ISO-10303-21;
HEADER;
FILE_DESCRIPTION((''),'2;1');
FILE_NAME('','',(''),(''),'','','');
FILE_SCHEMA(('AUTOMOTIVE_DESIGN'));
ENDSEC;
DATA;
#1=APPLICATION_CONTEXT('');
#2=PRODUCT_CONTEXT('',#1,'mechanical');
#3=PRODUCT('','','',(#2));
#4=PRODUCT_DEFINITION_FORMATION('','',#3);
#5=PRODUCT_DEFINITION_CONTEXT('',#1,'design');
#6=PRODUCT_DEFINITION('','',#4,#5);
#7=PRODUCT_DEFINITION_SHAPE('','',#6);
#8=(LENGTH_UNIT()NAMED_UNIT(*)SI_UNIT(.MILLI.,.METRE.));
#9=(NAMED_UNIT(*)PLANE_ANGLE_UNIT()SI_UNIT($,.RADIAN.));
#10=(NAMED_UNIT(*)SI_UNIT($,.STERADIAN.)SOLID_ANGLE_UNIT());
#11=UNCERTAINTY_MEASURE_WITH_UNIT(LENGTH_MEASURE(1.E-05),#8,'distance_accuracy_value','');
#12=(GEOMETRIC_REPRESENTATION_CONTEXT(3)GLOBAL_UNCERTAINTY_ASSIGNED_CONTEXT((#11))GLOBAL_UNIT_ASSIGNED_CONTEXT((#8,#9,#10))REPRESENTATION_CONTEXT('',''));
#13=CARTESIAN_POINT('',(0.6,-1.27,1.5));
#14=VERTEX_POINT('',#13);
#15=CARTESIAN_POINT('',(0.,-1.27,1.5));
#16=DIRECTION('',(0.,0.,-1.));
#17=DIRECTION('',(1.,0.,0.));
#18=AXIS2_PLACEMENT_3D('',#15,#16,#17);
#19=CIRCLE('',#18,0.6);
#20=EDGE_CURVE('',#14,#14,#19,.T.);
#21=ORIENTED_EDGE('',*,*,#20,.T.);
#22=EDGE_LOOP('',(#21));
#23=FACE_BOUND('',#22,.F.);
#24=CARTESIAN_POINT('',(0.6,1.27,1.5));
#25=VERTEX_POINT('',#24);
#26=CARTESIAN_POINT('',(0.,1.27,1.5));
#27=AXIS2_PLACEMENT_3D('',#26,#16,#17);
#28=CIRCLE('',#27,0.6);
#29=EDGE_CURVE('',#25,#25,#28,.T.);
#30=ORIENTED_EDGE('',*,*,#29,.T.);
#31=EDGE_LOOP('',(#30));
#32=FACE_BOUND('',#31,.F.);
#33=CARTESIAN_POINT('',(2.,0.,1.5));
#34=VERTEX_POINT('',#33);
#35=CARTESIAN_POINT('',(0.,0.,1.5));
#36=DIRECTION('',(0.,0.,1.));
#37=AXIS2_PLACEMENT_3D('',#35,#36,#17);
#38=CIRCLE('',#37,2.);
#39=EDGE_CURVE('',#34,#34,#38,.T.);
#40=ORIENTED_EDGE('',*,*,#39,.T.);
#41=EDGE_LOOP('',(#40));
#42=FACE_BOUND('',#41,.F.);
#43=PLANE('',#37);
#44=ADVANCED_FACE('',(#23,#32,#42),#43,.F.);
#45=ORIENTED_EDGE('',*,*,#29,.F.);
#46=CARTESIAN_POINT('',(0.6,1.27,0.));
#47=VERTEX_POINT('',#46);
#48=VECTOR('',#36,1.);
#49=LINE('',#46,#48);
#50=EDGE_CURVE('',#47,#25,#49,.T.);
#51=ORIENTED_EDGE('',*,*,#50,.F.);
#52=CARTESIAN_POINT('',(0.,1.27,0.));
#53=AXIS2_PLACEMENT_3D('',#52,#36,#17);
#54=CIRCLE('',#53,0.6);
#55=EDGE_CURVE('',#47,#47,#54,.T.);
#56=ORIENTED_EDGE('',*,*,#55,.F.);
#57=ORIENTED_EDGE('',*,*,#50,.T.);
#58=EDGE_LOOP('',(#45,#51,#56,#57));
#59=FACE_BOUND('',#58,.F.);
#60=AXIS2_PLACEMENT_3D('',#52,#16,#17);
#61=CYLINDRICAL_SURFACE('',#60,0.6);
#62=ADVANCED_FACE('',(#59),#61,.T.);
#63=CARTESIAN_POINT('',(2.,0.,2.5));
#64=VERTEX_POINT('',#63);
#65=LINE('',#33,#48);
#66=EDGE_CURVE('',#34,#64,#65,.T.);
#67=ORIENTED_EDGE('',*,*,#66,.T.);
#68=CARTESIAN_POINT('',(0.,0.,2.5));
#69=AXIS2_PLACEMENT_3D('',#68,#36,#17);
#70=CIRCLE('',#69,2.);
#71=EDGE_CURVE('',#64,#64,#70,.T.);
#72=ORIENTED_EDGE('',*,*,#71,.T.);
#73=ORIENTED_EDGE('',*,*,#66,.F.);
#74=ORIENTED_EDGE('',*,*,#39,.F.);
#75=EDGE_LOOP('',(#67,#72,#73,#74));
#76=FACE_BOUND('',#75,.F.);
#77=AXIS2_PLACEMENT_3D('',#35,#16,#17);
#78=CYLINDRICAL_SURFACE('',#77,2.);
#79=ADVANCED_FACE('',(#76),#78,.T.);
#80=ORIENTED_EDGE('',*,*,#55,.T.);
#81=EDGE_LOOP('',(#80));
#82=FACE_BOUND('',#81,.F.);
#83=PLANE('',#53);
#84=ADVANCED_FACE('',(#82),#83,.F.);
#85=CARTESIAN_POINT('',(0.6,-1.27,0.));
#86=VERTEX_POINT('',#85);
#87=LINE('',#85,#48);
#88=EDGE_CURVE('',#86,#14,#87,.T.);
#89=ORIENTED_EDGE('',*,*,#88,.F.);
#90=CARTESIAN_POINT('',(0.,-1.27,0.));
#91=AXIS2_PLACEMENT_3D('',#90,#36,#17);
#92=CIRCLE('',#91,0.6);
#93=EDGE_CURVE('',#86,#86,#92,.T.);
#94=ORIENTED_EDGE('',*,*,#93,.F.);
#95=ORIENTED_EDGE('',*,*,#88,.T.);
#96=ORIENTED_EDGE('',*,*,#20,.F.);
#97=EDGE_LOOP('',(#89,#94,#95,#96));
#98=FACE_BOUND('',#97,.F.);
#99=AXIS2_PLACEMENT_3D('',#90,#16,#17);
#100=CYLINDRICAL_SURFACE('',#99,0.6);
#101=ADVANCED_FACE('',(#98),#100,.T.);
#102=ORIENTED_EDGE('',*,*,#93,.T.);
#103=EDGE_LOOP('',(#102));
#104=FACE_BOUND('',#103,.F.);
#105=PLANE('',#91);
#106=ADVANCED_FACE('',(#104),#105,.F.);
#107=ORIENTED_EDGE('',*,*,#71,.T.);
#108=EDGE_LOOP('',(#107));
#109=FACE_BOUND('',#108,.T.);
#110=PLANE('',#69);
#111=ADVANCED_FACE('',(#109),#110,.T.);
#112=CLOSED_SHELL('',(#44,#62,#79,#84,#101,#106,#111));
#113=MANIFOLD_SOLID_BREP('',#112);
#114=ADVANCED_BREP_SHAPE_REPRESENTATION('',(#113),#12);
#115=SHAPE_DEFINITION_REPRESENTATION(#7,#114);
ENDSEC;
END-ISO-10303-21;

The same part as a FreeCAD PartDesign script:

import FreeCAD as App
import Part
import Sketcher
Q = App.Units.Quantity

doc = App.newDocument("Part")
params = doc.addObject("Spreadsheet::Sheet", "Params")
for row, (alias, value) in enumerate([
    ("sketch1_diameter", "1.2 mm"),
    ("pad1_length", "2.5 mm"),
    ("sketch2_diameter", "1.2 mm"),
    ("pad2_length", "2.5 mm"),
    ("sketch3_diameter", "4 mm"),
    ("pad3_length", "1 mm"),
], start=1):
    params.set(f"A{row}", alias)
    params.set(f"B{row}", "=" + value)
    params.setAlias(f"B{row}", alias)

body = doc.addObject("PartDesign::Body", "Body")

# Sketch on XY plane
sketch1 = body.newObject("Sketcher::SketchObject", "Sketch")
sketch1.AttachmentSupport = (doc.getObject("XY_Plane"), [""])
sketch1.MapMode = "FlatFace"
sketch1.addGeometry(Part.Circle(App.Vector(0, 1.3, 0), App.Vector(0, 0, 1), 0.6), False)
sketch1.addConstraint(Sketcher.Constraint("PointOnObject", 0, 3, -2))
sketch1.addConstraint(Sketcher.Constraint("Diameter", 0, Q("1.2 mm")))
sketch1.addConstraint(Sketcher.Constraint("DistanceY", -1, 1, 0, 3, Q("1.27 mm")))
sketch1.setExpression("Constraints[1]", "Params.sketch1_diameter")
pad1 = body.newObject("PartDesign::Pad", "Pad")
pad1.Profile = sketch1
pad1.setExpression("Length", "Params.pad1_length")
body2 = doc.addObject("PartDesign::Body", "Body001")

# Sketch on XY plane
sketch2 = body2.newObject("Sketcher::SketchObject", "Sketch001")
sketch2.AttachmentSupport = (doc.getObject("XY_Plane001"), [""])
sketch2.MapMode = "FlatFace"
sketch2.addGeometry(Part.Circle(App.Vector(0, -1.3, 0), App.Vector(0, 0, 1), 0.6), False)
sketch2.addConstraint(Sketcher.Constraint("PointOnObject", 0, 3, -2))
sketch2.addConstraint(Sketcher.Constraint("Diameter", 0, Q("1.2 mm")))
sketch2.addConstraint(Sketcher.Constraint("DistanceY", 0, 3, -1, 1, Q("1.27 mm")))
sketch2.setExpression("Constraints[1]", "Params.sketch2_diameter")
pad2 = body2.newObject("PartDesign::Pad", "Pad001")
pad2.Profile = sketch2
pad2.setExpression("Length", "Params.pad2_length")
body3 = doc.addObject("PartDesign::Body", "Body002")

# Sketch on XY plane
sketch3 = body3.newObject("Sketcher::SketchObject", "Sketch002")
sketch3.AttachmentSupport = (doc.getObject("XY_Plane002"), [""])
sketch3.MapMode = "FlatFace"
sketch3.AttachmentOffset = App.Placement(App.Vector(0, 0, 1.5), App.Rotation())
sketch3.addGeometry(Part.Circle(App.Vector(0, 0, 0), App.Vector(0, 0, 1), 2), False)
sketch3.addConstraint(Sketcher.Constraint("Coincident", 0, 3, -1, 1))
sketch3.addConstraint(Sketcher.Constraint("Diameter", 0, Q("4 mm")))
sketch3.setExpression("Constraints[1]", "Params.sketch3_diameter")
pad3 = body3.newObject("PartDesign::Pad", "Pad002")
pad3.Profile = sketch3
pad3.setExpression("Length", "Params.pad3_length")
doc.recompute()

boolean = body3.newObject("PartDesign::Boolean", "Boolean")
boolean.Type = "Fuse"
boolean.addObjects([body])
doc.recompute()

boolean2 = body3.newObject("PartDesign::Boolean", "Boolean001")
boolean2.Type = "Fuse"
boolean2.addObjects([body2])

doc.recompute()
